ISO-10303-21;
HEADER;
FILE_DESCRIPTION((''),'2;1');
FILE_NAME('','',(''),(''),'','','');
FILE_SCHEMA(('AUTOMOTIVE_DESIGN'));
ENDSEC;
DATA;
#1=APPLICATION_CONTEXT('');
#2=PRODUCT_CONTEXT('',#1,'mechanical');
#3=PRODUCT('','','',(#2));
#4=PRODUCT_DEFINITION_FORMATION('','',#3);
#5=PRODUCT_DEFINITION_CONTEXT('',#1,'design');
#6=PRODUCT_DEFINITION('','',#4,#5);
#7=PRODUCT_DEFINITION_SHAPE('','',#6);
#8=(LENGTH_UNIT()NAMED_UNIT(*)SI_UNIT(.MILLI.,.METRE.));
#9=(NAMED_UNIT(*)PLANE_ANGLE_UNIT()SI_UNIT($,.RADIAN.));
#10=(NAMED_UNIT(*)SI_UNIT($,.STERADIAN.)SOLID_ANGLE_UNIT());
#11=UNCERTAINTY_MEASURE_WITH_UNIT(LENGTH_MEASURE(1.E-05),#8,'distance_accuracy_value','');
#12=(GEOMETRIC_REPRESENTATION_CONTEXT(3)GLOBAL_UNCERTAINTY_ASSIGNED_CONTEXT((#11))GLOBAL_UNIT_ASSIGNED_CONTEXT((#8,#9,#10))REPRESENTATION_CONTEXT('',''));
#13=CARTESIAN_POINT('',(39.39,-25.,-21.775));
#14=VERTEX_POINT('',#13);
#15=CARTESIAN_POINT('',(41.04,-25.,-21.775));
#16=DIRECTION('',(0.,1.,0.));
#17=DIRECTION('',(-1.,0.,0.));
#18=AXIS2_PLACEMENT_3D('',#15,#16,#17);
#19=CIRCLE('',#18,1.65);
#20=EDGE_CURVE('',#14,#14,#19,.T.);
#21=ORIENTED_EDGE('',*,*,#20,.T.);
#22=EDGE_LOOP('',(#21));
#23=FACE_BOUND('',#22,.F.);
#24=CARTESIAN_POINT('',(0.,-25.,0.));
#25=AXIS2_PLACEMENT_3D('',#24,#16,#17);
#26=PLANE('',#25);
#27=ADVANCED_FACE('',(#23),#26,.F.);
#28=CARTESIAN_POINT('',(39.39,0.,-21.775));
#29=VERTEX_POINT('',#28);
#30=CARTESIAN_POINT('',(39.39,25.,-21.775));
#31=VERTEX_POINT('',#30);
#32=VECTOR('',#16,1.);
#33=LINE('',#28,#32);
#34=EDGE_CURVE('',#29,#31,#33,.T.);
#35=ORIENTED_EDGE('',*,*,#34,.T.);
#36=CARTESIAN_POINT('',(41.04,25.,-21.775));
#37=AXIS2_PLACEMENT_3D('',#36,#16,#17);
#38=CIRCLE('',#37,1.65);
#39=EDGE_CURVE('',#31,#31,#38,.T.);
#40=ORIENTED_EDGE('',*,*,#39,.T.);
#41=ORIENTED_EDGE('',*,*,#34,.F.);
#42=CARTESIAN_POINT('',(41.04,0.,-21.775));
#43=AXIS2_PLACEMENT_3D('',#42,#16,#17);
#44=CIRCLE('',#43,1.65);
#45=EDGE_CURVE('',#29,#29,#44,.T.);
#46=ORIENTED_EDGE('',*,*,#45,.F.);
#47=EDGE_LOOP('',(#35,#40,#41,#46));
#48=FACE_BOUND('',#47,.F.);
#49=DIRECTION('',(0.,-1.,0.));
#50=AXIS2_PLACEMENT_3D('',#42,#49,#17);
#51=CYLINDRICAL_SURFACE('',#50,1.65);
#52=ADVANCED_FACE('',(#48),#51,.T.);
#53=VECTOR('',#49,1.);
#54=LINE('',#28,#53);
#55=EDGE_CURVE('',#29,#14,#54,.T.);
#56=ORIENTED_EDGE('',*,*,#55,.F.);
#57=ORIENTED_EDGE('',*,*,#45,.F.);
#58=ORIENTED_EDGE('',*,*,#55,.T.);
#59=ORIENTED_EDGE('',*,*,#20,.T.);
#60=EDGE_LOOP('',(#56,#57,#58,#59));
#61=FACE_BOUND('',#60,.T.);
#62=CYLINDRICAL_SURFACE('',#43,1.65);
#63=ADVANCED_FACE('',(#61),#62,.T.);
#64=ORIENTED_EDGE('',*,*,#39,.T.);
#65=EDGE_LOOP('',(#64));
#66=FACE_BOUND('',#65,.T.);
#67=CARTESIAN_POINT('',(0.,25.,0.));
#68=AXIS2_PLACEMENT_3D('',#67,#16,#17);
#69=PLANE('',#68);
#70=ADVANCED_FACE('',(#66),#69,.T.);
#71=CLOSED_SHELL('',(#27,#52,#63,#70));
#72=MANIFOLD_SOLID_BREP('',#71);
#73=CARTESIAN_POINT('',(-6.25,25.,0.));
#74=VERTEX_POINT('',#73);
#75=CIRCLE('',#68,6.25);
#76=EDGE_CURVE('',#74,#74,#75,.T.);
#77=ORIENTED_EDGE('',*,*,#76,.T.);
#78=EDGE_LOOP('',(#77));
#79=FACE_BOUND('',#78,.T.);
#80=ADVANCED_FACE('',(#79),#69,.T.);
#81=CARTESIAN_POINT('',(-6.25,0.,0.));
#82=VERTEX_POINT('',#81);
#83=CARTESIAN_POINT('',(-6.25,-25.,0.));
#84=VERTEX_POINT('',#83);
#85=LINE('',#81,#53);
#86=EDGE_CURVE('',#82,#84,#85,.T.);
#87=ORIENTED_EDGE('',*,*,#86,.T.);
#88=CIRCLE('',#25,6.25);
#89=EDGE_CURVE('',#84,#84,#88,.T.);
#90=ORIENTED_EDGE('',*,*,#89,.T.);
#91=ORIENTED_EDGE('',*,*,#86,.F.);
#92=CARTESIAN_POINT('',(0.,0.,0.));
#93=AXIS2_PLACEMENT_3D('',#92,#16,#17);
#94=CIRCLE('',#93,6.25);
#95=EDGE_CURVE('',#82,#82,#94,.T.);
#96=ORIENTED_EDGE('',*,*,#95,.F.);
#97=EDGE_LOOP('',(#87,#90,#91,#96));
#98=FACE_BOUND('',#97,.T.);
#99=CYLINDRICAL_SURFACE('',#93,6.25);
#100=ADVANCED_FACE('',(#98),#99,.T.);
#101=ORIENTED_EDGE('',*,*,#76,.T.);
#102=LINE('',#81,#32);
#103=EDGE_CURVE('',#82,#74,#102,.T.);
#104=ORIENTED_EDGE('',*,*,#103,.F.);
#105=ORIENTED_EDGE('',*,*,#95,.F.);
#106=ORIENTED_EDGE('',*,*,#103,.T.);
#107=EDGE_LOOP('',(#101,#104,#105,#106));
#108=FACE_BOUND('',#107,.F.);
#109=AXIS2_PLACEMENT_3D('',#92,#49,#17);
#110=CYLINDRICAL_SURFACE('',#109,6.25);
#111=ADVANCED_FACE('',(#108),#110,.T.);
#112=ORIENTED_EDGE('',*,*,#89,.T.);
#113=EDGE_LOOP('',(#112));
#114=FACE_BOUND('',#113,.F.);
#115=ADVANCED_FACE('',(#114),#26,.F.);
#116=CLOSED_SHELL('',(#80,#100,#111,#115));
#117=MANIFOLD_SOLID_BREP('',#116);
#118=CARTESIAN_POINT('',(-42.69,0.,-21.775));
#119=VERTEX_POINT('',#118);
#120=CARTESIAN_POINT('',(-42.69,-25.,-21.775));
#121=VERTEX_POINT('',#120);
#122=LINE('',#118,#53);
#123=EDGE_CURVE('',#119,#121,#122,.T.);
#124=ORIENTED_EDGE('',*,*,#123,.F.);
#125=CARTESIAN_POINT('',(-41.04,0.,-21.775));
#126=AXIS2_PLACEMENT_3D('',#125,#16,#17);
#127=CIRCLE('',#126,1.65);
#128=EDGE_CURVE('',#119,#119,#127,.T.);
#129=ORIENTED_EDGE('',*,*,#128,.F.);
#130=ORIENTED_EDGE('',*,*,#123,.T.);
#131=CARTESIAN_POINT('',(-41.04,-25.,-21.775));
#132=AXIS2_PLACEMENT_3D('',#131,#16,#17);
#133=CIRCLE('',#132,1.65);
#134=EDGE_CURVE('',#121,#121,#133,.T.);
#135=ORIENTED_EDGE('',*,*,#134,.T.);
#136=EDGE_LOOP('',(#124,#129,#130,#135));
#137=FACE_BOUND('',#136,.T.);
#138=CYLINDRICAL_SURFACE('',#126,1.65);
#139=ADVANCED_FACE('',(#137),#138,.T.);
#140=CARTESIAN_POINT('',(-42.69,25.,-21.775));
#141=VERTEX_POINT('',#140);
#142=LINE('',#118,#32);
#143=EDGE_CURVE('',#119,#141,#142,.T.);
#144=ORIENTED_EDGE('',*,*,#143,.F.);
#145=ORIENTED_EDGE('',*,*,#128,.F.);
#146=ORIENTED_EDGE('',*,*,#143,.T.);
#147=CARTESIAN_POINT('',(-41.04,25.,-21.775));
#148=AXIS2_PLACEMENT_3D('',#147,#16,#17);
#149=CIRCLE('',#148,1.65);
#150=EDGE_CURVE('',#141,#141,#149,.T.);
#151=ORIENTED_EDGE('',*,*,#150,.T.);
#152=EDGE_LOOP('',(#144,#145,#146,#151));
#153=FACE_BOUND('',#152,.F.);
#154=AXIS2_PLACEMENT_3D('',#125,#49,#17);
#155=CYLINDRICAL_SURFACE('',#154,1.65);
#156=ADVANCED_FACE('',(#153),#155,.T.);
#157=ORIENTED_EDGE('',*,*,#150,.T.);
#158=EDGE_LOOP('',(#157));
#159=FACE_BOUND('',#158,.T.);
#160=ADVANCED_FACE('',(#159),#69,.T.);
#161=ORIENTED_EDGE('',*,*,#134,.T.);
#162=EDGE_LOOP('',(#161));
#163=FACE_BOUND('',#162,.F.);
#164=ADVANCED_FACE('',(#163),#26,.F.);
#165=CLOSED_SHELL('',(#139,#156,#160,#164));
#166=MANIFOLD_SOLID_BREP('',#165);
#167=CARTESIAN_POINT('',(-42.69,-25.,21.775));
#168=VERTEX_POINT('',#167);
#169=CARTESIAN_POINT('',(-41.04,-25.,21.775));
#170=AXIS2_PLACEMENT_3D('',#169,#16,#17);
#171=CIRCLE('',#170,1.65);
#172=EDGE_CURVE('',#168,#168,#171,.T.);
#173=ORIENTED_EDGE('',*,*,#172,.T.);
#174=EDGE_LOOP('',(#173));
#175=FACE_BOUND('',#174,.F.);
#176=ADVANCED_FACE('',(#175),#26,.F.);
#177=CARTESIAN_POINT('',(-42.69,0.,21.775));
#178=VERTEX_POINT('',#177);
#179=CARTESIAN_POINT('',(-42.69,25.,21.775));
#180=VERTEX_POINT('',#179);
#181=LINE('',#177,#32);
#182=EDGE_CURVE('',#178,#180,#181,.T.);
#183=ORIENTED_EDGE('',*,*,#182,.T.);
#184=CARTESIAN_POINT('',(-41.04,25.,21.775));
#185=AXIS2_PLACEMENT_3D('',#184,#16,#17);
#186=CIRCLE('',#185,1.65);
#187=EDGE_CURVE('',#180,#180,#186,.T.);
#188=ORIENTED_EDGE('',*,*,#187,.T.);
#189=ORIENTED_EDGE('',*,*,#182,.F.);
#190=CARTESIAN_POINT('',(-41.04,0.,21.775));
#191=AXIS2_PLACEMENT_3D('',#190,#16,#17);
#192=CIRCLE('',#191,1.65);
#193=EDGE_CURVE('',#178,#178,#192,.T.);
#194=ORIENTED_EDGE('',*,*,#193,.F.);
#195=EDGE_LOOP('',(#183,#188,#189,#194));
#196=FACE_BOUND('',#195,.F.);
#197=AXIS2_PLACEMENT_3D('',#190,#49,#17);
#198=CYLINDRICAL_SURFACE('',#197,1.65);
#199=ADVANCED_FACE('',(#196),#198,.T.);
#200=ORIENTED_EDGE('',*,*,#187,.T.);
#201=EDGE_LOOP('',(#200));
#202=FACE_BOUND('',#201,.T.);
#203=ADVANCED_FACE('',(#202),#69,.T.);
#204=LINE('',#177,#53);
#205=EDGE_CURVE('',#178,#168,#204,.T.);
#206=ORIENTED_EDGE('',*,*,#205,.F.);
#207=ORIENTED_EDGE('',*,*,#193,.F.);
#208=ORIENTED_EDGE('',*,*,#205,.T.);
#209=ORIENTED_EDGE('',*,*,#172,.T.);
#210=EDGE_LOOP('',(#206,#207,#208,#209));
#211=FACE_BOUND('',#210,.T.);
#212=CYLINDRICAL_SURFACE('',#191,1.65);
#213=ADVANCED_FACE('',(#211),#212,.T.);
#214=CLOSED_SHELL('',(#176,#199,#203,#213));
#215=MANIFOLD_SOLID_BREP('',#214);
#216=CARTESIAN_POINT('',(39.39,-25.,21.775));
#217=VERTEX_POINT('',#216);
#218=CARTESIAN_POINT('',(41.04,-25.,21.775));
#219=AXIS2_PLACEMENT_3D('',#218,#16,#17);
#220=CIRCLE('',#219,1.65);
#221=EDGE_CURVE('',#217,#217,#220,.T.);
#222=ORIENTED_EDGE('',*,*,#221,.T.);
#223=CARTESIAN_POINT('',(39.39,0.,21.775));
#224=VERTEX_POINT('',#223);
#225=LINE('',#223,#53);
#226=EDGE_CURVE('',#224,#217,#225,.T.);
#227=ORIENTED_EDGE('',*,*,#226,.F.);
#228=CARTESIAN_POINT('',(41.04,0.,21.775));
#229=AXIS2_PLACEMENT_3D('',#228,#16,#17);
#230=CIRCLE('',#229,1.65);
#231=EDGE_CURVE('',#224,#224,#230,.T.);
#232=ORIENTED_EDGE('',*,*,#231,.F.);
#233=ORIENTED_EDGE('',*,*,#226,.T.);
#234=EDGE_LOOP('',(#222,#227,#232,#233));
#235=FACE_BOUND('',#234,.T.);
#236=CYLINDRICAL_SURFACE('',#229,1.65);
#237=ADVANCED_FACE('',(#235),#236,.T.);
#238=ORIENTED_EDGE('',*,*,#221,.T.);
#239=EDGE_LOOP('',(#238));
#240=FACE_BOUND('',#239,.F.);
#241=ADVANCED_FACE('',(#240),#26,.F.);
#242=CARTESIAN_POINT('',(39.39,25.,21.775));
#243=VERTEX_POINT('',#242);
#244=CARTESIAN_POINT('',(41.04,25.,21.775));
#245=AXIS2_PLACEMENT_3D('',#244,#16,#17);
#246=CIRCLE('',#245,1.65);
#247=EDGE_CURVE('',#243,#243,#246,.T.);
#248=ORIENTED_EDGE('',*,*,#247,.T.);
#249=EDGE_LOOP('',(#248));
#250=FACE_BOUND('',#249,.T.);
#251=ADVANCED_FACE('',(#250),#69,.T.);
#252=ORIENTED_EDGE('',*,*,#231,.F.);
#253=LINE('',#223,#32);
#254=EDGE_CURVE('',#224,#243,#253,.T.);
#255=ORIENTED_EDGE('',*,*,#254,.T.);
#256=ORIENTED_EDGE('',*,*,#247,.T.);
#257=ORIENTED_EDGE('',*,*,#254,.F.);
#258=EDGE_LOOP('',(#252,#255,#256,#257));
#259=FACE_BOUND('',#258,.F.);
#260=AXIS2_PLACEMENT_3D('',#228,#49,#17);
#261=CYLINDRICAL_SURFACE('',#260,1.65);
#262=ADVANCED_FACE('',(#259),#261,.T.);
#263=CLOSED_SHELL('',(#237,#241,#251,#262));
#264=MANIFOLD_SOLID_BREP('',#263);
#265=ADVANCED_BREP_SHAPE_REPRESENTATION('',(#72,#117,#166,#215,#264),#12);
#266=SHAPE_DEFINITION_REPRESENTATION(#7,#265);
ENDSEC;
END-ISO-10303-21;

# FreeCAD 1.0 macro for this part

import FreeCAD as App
import Part
import Sketcher
Q = App.Units.Quantity

doc = App.newDocument("Part")
body = doc.addObject("PartDesign::Body", "Body")
body.AllowCompound = True

# Sketch on XZ plane
sketch1 = body.newObject("Sketcher::SketchObject", "Sketch")
sketch1.AttachmentSupport = (doc.getObject("XZ_Plane"), [""])
sketch1.MapMode = "FlatFace"
sketch1.addGeometry([
    Part.Circle(App.Vector(41, -21.8, 0), App.Vector(0, 0, 1), 1.6),  # 0
    Part.Circle(App.Vector(41, 21.8, 0), App.Vector(0, 0, 1), 1.6),  # 1
    Part.Circle(App.Vector(-41, 21.8, 0), App.Vector(0, 0, 1), 1.6),  # 2
    Part.Circle(App.Vector(-41, -21.8, 0), App.Vector(0, 0, 1), 1.6),  # 3
    Part.Circle(App.Vector(0, 0, 0), App.Vector(0, 0, 1), 6.2),  # 4
], False)
sketch1.addConstraint([
    Sketcher.Constraint("Coincident", 4, 3, -1, 1),
    Sketcher.Constraint("Equal", 0, 1),
    Sketcher.Constraint("Equal", 1, 2),
    Sketcher.Constraint("Equal", 2, 3),
    Sketcher.Constraint("Symmetric", 0, 3, 2, 3, -1, 1),
    Sketcher.Constraint("Symmetric", 1, 3, 3, 3, -1, 1),
    Sketcher.Constraint("Symmetric", 1, 3, 2, 3, -2),
    Sketcher.Constraint("Diameter", 0, Q("3.3 mm")),
    Sketcher.Constraint("Diameter", 4, Q("12.5 mm")),
    Sketcher.Constraint("DistanceX", -1, 1, 0, 3, Q("41.04 mm")),
    Sketcher.Constraint("DistanceY", 0, 3, 1, 3, Q("43.55 mm")),
])
pad1 = body.newObject("PartDesign::Pad", "Pad")
pad1.Profile = sketch1
pad1.Length = 50
pad1.Midplane = True

doc.recompute()
